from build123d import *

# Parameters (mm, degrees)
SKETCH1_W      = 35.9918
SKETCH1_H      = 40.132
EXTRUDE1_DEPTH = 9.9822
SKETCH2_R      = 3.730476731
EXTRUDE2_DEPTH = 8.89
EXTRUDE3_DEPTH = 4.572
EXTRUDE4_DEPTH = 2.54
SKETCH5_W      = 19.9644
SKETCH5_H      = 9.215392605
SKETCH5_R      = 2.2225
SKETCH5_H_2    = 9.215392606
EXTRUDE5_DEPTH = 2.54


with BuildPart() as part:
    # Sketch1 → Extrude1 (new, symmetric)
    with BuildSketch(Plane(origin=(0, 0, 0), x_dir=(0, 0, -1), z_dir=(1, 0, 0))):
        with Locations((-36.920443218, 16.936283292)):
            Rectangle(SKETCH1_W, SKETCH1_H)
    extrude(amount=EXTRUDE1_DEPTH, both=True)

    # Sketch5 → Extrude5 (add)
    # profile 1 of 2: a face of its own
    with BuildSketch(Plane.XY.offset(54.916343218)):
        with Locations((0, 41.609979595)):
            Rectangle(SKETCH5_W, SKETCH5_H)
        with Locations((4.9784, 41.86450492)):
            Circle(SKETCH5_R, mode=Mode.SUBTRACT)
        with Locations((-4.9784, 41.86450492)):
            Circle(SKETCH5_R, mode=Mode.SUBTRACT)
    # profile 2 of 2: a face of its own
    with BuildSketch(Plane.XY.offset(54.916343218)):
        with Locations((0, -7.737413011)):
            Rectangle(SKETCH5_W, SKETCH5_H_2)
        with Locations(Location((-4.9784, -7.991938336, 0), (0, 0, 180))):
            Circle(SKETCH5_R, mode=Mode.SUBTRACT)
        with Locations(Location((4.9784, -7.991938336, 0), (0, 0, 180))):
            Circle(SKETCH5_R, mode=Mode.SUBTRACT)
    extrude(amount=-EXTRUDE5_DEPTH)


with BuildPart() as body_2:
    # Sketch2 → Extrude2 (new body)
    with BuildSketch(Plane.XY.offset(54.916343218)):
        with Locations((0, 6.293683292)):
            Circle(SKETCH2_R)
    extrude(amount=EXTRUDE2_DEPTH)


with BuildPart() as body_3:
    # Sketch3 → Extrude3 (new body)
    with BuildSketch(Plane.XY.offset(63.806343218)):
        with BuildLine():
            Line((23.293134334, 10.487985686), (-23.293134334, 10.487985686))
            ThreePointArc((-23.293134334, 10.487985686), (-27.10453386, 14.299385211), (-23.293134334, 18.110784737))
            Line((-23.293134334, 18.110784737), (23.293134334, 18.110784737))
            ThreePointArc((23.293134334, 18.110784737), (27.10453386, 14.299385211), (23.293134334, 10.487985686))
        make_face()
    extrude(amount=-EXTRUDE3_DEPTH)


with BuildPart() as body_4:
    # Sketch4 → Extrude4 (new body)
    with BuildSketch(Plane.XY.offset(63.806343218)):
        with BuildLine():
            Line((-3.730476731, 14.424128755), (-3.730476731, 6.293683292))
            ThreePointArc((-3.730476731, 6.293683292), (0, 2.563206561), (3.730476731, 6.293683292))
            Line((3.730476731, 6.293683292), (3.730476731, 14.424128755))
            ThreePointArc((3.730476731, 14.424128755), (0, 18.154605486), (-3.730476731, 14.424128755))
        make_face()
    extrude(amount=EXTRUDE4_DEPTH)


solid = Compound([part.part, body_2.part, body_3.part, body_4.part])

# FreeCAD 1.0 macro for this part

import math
import FreeCAD as App
import Part
import Sketcher

V = App.Vector
Q = App.Units.Quantity


def add_polygon(sketch, points):
    """Adds a closed chain of lines whose ends are joined by coincident constraints."""
    first, n = sketch.GeometryCount, len(points)
    for a, b in zip(points, points[1:] + points[:1]):
        sketch.addGeometry(Part.LineSegment(App.Vector(*a, 0), App.Vector(*b, 0)), False)
    for i in range(n):
        sketch.addConstraint(Sketcher.Constraint("Coincident", first + i, 2, first + (i + 1) % n, 1))

doc = App.newDocument("Part")
body = doc.addObject("PartDesign::Body", "Body")

# Sketch on YZ plane
sketch1 = body.newObject("Sketcher::SketchObject", "Sketch")
sketch1.AttachmentSupport = (doc.getObject("YZ_Plane"), [""])
sketch1.MapMode = "FlatFace"
add_polygon(sketch1, [(37, 55), (-3, 55), (-3, 19), (37, 19)])  # lines 0-3
sketch1.addConstraint([
    Sketcher.Constraint("Horizontal", 0),
    Sketcher.Constraint("Vertical", 1),
    Sketcher.Constraint("Horizontal", 2),
    Sketcher.Constraint("Vertical", 3),
    Sketcher.Constraint("DistanceX", 0, 2, 0, 1, Q("1.58 in")),
    Sketcher.Constraint("DistanceY", 1, 2, 1, 1, Q("1.417 in")),
    Sketcher.Constraint("DistanceX", 0, 2, -1, 1, Q("3.129717 mm")),
    Sketcher.Constraint("DistanceY", -1, 1, 0, 2, Q("54.916343 mm")),
])
pad1 = body.newObject("PartDesign::Pad", "Pad")
pad1.Profile = sketch1
pad1.Length = Q("0.786 in")
pad1.Midplane = True

# Sketch on XY plane
sketch2 = body.newObject("Sketcher::SketchObject", "Sketch001")
sketch2.AttachmentSupport = (doc.getObject("XY_Plane"), [""])
sketch2.MapMode = "FlatFace"
sketch2.AttachmentOffset = App.Placement(V(0, 0, 54.916343), App.Rotation())
add_polygon(sketch2, [(-10, 46.2), (-10, 37), (10, 37), (10, 46.2)])  # lines 0-3
sketch2.addGeometry(Part.Circle(V(-5, 41.9, 0), V(0, 0, 1), 2.2), False)  # 4
sketch2.addGeometry(Part.Circle(V(5, 41.9, 0), V(0, 0, 1), 2.2), False)  # 5
add_polygon(sketch2, [(-10, -3.1), (-10, -12.3), (10, -12.3), (10, -3.1)])  # lines 6-9
sketch2.addGeometry(Part.Circle(V(-5, -8, 0), V(0, 0, 1), 2.2), False)  # 10
sketch2.addGeometry(Part.Circle(V(5, -8, 0), V(0, 0, 1), 2.2), False)  # 11
sketch2.addConstraint([
    Sketcher.Constraint("Vertical", 0),
    Sketcher.Constraint("Horizontal", 1),
    Sketcher.Constraint("Vertical", 2),
    Sketcher.Constraint("Horizontal", 3),
    Sketcher.Constraint("Vertical", 6),
    Sketcher.Constraint("Horizontal", 7),
    Sketcher.Constraint("Vertical", 8),
    Sketcher.Constraint("Horizontal", 9),
    Sketcher.Constraint("Equal", 4, 5),
    Sketcher.Constraint("Equal", 5, 10),
    Sketcher.Constraint("Equal", 10, 11),
    Sketcher.Constraint("Symmetric", 4, 3, 5, 3, -2),
    Sketcher.Constraint("Symmetric", 10, 3, 11, 3, -2),
    Sketcher.Constraint("Vertical", 4, 3, 10, 3),
    Sketcher.Constraint("Vertical", 3, 2, 6, 2),
    Sketcher.Constraint("Vertical", 2, 2, 7, 2),
    Sketcher.Constraint("Equal", 2, 6),
    Sketcher.Constraint("Diameter", 4, Q("0.175 in")),
    Sketcher.Constraint("DistanceX", 1, 1, 1, 2, Q("0.786 in")),
    Sketcher.Constraint("DistanceY", 8, 2, 1, 2, Q("1.58 in")),
    Sketcher.Constraint("DistanceX", 4, 3, -1, 1, Q("0.196 in")),
    Sketcher.Constraint("DistanceX", 0, 2, -1, 1, Q("0.393 in")),
    Sketcher.Constraint("DistanceY", 0, 2, 0, 1, Q("9.215393 mm")),
    Sketcher.Constraint("DistanceY", 10, 3, -1, 1, Q("7.991938 mm")),
    Sketcher.Constraint("DistanceY", 6, 2, -1, 1, Q("12.345109 mm")),
    Sketcher.Constraint("DistanceY", 0, 2, 4, 3, Q("4.862222 mm")),
])
pad2 = body.newObject("PartDesign::Pad", "Pad001")
pad2.Profile = sketch2
pad2.Length = Q("0.1 in")
pad2.Reversed = True
body2 = doc.addObject("PartDesign::Body", "Body001")

# Sketch on XY plane
sketch3 = body2.newObject("Sketcher::SketchObject", "Sketch002")
sketch3.AttachmentSupport = (doc.getObject("XY_Plane001"), [""])
sketch3.MapMode = "FlatFace"
sketch3.AttachmentOffset = App.Placement(V(0, 0, 54.916343), App.Rotation())
sketch3.addGeometry(Part.Circle(V(0, 6.3, 0), V(0, 0, 1), 3.7), False)
sketch3.addConstraint([
    Sketcher.Constraint("PointOnObject", 0, 3, -2),
    Sketcher.Constraint("Diameter", 0, Q("7.460953 mm")),
    Sketcher.Constraint("DistanceY", -1, 1, 0, 3, Q("6.293683 mm")),
])
pad3 = body2.newObject("PartDesign::Pad", "Pad002")
pad3.Profile = sketch3
pad3.Length = Q("0.35 in")
body3 = doc.addObject("PartDesign::Body", "Body002")

# Sketch on XY plane
sketch4 = body3.newObject("Sketcher::SketchObject", "Sketch003")
sketch4.AttachmentSupport = (doc.getObject("XY_Plane002"), [""])
sketch4.MapMode = "FlatFace"
sketch4.AttachmentOffset = App.Placement(V(0, 0, 63.806343), App.Rotation())
sketch4.addGeometry([
    Part.LineSegment(V(-23.3, 10.5, 0), V(23.3, 10.5, 0)),
    Part.ArcOfCircle(Part.Circle(V(23.3, 14.3, 0), V(0, 0, 1), 3.8), math.radians(-90), math.radians(90)),
    Part.LineSegment(V(23.3, 18.1, 0), V(-23.3, 18.1, 0)),
    Part.ArcOfCircle(Part.Circle(V(-23.3, 14.3, 0), V(0, 0, 1), 3.8), math.radians(90), math.radians(270)),
], False)
sketch4.addConstraint([
    Sketcher.Constraint("Tangent", 0, 2, 1, 1),
    Sketcher.Constraint("Tangent", 1, 2, 2, 1),
    Sketcher.Constraint("Tangent", 2, 2, 3, 1),
    Sketcher.Constraint("Tangent", 3, 2, 0, 1),
    Sketcher.Constraint("Horizontal", 0),
    Sketcher.Constraint("Horizontal", 2),
    Sketcher.Constraint("Radius", 1, Q("3.8114 mm")),
    Sketcher.Constraint("DistanceX", 0, 1, 0, 2, Q("46.586269 mm")),
    Sketcher.Constraint("DistanceX", -1, 1, 1, 3, Q("23.293134 mm")),
    Sketcher.Constraint("DistanceY", -1, 1, 1, 3, Q("14.299385 mm")),
])
pad4 = body3.newObject("PartDesign::Pad", "Pad003")
pad4.Profile = sketch4
pad4.Length = Q("0.18 in")
pad4.Reversed = True
body4 = doc.addObject("PartDesign::Body", "Body003")

# Sketch on XY plane
sketch5 = body4.newObject("Sketcher::SketchObject", "Sketch004")
sketch5.AttachmentSupport = (doc.getObject("XY_Plane003"), [""])
sketch5.MapMode = "FlatFace"
sketch5.AttachmentOffset = App.Placement(V(0, 0, 63.806343), App.Rotation())
sketch5.addGeometry([
    Part.LineSegment(V(-3.7, 14.4, 0), V(-3.7, 6.3, 0)),
    Part.ArcOfCircle(Part.Circle(V(0, 6.3, 0), V(0, 0, 1), 3.7), math.radians(180), math.radians(360)),
    Part.LineSegment(V(3.7, 6.3, 0), V(3.7, 14.4, 0)),
    Part.ArcOfCircle(Part.Circle(V(0, 14.4, 0), V(0, 0, 1), 3.7), math.radians(0), math.radians(180)),
], False)
sketch5.addConstraint([
    Sketcher.Constraint("Tangent", 0, 2, 1, 1),
    Sketcher.Constraint("Tangent", 1, 2, 2, 1),
    Sketcher.Constraint("Tangent", 2, 2, 3, 1),
    Sketcher.Constraint("Tangent", 3, 2, 0, 1),
    Sketcher.Constraint("Vertical", 0),
    Sketcher.Constraint("Vertical", 2),
    Sketcher.Constraint("PointOnObject", 1, 3, -2),
    Sketcher.Constraint("Radius", 1, Q("3.730477 mm")),
    Sketcher.Constraint("DistanceY", 0, 2, 0, 1, Q("8.130445 mm")),
    Sketcher.Constraint("DistanceY", -1, 1, 3, 3, Q("14.424129 mm")),
])
pad5 = body4.newObject("PartDesign::Pad", "Pad004")
pad5.Profile = sketch5
pad5.Length = Q("0.1 in")

doc.recompute()
